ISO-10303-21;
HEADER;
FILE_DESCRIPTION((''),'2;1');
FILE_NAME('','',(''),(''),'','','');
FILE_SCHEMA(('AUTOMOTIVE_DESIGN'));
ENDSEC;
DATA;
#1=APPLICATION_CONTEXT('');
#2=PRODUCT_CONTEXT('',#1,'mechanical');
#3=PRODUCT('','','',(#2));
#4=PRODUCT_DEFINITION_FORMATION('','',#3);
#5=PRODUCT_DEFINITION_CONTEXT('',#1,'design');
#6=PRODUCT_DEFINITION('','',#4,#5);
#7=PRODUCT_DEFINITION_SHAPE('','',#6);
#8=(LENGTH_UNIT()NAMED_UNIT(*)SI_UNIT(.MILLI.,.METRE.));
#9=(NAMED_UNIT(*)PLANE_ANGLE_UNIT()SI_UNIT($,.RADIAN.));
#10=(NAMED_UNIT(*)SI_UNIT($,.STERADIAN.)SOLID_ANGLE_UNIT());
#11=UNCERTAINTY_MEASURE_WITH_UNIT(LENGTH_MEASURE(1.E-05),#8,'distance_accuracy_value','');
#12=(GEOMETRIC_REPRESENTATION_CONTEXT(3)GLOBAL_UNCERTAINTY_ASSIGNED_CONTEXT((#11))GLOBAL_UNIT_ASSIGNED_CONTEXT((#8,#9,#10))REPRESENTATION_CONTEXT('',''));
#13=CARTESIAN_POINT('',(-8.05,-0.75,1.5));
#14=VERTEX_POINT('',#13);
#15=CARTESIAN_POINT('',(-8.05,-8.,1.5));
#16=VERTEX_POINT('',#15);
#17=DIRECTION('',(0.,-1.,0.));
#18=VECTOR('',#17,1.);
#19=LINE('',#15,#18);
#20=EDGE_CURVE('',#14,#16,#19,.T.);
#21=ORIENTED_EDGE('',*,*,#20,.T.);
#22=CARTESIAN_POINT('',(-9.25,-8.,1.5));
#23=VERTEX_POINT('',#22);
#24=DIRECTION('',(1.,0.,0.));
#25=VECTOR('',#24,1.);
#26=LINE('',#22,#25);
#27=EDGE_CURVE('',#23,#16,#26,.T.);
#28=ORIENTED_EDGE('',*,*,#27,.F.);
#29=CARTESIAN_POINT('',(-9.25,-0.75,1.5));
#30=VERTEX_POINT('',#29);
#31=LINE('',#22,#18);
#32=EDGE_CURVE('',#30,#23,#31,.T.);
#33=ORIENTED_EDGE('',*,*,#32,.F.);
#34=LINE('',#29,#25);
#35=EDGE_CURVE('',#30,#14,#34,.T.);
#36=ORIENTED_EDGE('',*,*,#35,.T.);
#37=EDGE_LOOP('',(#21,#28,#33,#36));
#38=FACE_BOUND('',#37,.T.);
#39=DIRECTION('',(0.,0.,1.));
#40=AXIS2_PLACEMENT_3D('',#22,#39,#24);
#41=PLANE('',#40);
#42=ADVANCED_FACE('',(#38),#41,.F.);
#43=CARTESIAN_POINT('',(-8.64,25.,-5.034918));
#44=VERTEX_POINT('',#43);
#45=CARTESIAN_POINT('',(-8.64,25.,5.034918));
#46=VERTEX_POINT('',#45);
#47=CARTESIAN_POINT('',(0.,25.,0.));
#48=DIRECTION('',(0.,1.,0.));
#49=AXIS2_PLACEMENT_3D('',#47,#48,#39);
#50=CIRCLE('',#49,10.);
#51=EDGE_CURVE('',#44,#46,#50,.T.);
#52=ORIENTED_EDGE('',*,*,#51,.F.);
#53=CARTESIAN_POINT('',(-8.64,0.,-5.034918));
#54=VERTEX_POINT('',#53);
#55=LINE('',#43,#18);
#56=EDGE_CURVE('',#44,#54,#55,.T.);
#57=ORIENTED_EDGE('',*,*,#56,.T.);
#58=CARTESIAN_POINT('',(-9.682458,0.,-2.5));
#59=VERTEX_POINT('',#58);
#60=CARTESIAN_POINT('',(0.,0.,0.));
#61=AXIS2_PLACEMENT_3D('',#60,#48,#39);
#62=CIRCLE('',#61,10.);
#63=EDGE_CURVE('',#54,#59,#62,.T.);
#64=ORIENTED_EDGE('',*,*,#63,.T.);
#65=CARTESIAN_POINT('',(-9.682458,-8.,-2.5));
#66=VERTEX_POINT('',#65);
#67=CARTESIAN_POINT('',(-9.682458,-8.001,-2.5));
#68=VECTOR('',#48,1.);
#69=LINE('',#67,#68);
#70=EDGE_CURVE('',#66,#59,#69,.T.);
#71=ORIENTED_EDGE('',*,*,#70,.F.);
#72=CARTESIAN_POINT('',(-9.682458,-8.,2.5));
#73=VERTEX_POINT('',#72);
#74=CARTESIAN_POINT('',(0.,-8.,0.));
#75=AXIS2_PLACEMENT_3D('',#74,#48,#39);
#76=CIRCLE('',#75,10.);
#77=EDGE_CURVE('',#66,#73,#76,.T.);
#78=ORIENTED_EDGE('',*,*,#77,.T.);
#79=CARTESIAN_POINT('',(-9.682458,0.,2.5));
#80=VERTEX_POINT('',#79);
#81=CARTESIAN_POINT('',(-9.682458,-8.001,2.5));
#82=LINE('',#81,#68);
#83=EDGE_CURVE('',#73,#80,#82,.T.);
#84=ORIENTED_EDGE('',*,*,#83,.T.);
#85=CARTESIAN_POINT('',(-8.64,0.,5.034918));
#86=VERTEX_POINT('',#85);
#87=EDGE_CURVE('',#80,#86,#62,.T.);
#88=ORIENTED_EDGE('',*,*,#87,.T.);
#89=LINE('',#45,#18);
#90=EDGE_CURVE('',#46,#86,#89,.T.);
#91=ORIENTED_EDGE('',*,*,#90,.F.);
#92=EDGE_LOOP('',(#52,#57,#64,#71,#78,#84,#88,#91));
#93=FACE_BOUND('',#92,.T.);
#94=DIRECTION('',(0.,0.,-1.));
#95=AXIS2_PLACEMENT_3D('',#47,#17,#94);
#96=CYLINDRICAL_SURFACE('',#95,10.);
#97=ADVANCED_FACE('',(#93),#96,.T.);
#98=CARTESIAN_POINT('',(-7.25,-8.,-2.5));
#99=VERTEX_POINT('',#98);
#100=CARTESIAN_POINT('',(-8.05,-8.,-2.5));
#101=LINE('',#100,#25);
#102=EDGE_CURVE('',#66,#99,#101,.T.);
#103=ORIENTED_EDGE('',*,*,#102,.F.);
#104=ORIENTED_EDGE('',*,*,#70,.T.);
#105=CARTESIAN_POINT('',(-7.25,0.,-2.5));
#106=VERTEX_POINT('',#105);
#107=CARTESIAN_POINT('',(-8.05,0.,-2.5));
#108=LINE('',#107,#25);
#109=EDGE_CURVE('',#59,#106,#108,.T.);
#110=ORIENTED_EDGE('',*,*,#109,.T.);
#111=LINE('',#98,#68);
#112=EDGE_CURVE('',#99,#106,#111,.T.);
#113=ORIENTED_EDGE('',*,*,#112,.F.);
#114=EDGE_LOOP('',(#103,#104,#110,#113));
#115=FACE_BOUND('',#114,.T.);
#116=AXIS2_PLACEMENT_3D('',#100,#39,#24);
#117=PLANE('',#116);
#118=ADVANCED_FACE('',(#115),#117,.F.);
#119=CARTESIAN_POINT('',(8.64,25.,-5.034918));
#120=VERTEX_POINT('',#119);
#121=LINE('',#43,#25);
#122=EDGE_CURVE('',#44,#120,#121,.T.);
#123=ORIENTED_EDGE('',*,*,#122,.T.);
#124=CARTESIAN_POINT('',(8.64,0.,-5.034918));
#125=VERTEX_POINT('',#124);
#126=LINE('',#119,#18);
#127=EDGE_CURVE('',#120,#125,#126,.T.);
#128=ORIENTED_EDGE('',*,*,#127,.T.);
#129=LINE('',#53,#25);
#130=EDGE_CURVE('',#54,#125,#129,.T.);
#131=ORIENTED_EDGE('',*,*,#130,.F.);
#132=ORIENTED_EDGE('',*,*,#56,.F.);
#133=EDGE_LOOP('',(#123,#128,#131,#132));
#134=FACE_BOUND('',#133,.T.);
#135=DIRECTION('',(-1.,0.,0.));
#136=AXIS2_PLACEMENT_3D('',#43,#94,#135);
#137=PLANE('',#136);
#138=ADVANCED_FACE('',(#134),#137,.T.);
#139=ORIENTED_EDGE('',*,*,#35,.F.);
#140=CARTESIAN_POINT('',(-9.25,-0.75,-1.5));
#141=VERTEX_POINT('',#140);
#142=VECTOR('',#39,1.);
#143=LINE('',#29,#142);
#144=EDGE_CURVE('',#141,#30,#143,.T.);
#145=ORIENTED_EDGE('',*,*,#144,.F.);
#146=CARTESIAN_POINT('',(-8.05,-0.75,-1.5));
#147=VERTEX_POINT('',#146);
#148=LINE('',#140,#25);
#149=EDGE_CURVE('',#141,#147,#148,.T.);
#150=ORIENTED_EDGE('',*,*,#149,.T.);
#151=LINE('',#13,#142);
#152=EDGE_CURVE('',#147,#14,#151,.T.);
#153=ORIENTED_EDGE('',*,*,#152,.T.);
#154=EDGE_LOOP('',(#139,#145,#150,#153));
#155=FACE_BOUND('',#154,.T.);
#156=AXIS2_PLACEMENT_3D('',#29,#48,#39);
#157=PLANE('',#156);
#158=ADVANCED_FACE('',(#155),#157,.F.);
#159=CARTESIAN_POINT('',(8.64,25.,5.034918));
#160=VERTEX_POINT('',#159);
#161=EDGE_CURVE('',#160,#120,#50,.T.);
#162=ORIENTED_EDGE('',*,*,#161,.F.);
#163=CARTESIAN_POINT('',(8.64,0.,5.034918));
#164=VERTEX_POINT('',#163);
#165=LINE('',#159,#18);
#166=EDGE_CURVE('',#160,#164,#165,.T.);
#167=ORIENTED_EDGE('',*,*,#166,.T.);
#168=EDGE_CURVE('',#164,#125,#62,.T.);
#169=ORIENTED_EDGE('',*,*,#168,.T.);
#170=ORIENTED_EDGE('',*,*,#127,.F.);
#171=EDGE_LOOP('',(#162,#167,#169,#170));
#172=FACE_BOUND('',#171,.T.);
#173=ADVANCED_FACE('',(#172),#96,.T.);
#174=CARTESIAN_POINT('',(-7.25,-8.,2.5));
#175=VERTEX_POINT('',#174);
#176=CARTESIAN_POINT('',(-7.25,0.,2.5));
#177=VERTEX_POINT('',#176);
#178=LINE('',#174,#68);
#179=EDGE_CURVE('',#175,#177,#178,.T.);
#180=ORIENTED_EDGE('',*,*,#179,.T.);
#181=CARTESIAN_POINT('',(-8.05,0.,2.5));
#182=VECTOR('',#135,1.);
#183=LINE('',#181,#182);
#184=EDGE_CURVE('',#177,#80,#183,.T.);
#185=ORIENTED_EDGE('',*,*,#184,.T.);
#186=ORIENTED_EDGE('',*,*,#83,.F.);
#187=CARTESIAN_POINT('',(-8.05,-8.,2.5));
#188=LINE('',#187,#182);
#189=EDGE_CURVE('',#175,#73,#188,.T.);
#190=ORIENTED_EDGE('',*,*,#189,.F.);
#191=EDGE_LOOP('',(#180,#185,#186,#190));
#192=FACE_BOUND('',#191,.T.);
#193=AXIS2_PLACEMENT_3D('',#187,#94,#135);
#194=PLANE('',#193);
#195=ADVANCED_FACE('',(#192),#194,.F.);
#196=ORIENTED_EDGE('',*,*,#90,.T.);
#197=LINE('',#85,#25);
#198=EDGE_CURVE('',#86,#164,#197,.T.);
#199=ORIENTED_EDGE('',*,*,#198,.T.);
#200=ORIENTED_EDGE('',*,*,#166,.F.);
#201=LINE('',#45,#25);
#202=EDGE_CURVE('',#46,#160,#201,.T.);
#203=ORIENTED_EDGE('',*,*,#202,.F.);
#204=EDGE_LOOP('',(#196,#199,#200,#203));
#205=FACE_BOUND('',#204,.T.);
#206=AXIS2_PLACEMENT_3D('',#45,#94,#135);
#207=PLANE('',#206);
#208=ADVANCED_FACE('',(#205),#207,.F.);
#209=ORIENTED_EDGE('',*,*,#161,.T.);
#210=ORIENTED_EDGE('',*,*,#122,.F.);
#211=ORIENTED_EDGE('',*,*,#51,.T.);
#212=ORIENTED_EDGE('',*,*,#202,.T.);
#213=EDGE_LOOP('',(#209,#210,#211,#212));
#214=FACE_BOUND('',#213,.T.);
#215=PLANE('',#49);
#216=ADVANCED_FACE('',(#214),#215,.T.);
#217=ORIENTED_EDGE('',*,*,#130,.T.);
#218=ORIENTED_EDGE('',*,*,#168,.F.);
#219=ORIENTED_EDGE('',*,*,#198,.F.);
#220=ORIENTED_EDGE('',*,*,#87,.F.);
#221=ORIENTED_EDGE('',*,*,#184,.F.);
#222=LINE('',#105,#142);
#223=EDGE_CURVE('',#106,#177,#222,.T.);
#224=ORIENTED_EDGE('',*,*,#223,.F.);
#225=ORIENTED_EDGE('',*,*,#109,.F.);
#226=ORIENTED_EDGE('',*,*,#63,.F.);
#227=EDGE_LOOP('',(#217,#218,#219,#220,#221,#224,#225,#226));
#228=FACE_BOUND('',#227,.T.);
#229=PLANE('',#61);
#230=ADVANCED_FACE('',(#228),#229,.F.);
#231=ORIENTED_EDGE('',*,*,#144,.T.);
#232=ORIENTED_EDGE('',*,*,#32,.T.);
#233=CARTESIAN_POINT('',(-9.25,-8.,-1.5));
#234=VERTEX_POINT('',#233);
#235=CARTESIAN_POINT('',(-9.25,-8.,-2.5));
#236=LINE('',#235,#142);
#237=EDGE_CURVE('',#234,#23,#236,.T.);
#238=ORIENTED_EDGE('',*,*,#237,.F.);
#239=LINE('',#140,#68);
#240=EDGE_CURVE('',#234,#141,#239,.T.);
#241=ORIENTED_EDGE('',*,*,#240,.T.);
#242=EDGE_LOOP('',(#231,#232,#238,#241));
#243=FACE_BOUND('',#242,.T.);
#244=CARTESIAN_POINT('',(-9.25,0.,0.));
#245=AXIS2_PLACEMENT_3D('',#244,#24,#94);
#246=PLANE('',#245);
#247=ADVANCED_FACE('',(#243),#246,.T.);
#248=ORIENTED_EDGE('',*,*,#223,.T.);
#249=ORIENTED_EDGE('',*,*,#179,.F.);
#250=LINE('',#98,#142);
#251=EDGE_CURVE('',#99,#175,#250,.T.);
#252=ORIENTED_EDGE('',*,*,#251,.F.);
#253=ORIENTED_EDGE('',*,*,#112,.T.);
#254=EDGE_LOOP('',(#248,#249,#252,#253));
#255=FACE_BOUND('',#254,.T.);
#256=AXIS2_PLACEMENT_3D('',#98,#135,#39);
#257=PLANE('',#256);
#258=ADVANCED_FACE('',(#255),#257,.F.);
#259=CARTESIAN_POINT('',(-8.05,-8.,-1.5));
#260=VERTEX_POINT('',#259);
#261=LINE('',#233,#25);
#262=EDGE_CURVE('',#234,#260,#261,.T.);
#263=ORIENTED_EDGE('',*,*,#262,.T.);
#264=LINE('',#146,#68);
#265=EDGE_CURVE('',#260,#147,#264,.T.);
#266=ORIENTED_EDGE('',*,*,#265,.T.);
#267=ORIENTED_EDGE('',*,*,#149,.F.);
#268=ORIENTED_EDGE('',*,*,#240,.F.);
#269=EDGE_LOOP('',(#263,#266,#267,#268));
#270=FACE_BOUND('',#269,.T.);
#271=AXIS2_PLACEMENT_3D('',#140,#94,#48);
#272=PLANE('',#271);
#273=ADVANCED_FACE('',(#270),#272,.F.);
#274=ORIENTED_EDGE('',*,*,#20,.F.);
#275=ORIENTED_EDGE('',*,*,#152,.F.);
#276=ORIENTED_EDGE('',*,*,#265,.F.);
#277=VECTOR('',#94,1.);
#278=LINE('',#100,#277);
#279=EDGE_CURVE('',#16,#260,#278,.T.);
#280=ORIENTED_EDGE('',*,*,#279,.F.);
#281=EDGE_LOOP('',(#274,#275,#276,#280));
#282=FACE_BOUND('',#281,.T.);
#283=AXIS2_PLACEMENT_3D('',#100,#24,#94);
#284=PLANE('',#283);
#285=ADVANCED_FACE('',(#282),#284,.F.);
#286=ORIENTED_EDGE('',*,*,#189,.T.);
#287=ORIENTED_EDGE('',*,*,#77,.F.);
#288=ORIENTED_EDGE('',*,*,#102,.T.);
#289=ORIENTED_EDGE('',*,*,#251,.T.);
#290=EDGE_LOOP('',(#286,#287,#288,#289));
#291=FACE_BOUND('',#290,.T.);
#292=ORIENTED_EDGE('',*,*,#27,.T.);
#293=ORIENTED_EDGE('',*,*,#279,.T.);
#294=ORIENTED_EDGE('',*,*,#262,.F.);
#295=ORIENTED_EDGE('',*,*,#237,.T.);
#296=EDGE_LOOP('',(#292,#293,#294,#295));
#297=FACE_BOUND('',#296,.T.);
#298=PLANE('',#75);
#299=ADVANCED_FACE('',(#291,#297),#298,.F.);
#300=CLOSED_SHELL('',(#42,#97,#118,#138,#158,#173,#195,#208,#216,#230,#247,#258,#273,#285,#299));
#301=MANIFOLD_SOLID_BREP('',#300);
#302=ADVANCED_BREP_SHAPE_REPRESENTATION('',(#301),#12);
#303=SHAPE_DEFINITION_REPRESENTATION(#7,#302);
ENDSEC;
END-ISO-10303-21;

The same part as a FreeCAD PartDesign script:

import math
import FreeCAD as App
import Part
import Sketcher

doc = App.newDocument("Part")
params = doc.addObject("Spreadsheet::Sheet", "Params")
for row, (alias, value) in enumerate([
    ("sketch1_diameter", "20 mm"),
    ("pad1_length", "25 mm"),
    ("sketch2_radius", "10 mm"),
    ("sketch2_width", "17.28 mm"),
    ("pocket1_length", "25 mm"),
    ("sketch3_height", "5 mm"),
    ("sketch3_width", "0.8 mm"),
    ("pad2_length", "8 mm"),
    ("sketch4_width", "8 mm"),
    ("sketch4_height", "1 mm"),
    ("sketch4_height2", "3 mm"),
    ("sketch4_width2", "7.25 mm"),
    ("pad3_length", "1.2 mm"),
    ("sketch5_width", "8 mm"),
    ("sketch5_height", "5 mm"),
    ("pad4_length", "0.8 mm"),
    ("sketch6_radius", "10 mm"),
    ("sketch6_height", "5 mm"),
], start=1):
    params.set(f"A{row}", alias)
    params.set(f"B{row}", "=" + value)
    params.setAlias(f"B{row}", alias)

body = doc.addObject("PartDesign::Body", "Body")

sketch1 = doc.addObject("Sketcher::SketchObject", "Sketch")
body.addObject(sketch1)
sketch1.AttachmentSupport = (doc.XZ_Plane, [""])
sketch1.MapMode = "FlatFace"
sketch1.addGeometry(Part.Circle(App.Vector(0, 0, 0), App.Vector(0, 0, 1), 10), False)
sketch1.addConstraint([
    Sketcher.Constraint("Coincident", 0, 3, -1, 1),
    Sketcher.Constraint("Diameter", 0, 20.0),
])
sketch1.setExpression("Constraints[1]", "Params.sketch1_diameter")
pad1 = doc.addObject("PartDesign::Pad", "Pad")
body.addObject(pad1)
pad1.Profile = sketch1
pad1.setExpression("Length", "Params.pad1_length")
pad1.Reversed = True

sketch2 = doc.addObject("Sketcher::SketchObject", "Sketch001")
body.addObject(sketch2)
sketch2.AttachmentSupport = (doc.XZ_Plane, [""])
sketch2.MapMode = "FlatFace"
sketch2.addGeometry([
    Part.LineSegment(App.Vector(9, -5, 0), App.Vector(-9, -5, 0)),
    Part.ArcOfCircle(Part.Circle(App.Vector(0, 0, 0), App.Vector(0, 0, 1), 10), math.radians(-150), math.radians(-30)),
    Part.LineSegment(App.Vector(-9, 5, 0), App.Vector(9, 5, 0)),
    Part.ArcOfCircle(Part.Circle(App.Vector(0, 0, 0), App.Vector(0, 0, 1), 10), math.radians(30), math.radians(150)),
], False)
sketch2.addConstraint([
    Sketcher.Constraint("Coincident", 0, 1, 1, 2),
    Sketcher.Constraint("Coincident", 1, 1, 0, 2),
    Sketcher.Constraint("Coincident", 2, 1, 3, 2),
    Sketcher.Constraint("Coincident", 3, 1, 2, 2),
    Sketcher.Constraint("Horizontal", 0),
    Sketcher.Constraint("Horizontal", 2),
    Sketcher.Constraint("Coincident", 1, 3, -1, 1),
    Sketcher.Constraint("Coincident", 3, 3, -1, 1),
    Sketcher.Constraint("Equal", 1, 3),
    Sketcher.Constraint("Vertical", 1, 1, 2, 1),
    Sketcher.Constraint("Radius", 1, 10.0),
    Sketcher.Constraint("DistanceX", 0, 2, 0, 1, 17.28),
])
sketch2.setExpression("Constraints[10]", "Params.sketch2_radius")
sketch2.setExpression("Constraints[11]", "Params.sketch2_width")
pocket1 = doc.addObject("PartDesign::Pocket", "Pocket")
body.addObject(pocket1)
pocket1.Profile = sketch2
pocket1.setExpression("Length", "Params.pocket1_length")
body2 = doc.addObject("PartDesign::Body", "Body001")

sketch3 = doc.addObject("Sketcher::SketchObject", "Sketch002")
body2.addObject(sketch3)
sketch3.AttachmentSupport = (doc.getObject("XZ_Plane001"), [""])
sketch3.MapMode = "FlatFace"
sketch3.addGeometry([
    Part.LineSegment(App.Vector(-7.2, -2.5, 0), App.Vector(-7.2, 2.5, 0)),
    Part.LineSegment(App.Vector(-7.2, 2.5, 0), App.Vector(-8.1, 2.5, 0)),
    Part.LineSegment(App.Vector(-8.1, 2.5, 0), App.Vector(-8.1, -2.5, 0)),
    Part.LineSegment(App.Vector(-8.1, -2.5, 0), App.Vector(-7.2, -2.5, 0)),
], False)
sketch3.addConstraint([
    Sketcher.Constraint("Coincident", 0, 2, 1, 1),
    Sketcher.Constraint("Coincident", 1, 2, 2, 1),
    Sketcher.Constraint("Coincident", 2, 2, 3, 1),
    Sketcher.Constraint("Coincident", 3, 2, 0, 1),
    Sketcher.Constraint("Vertical", 0),
    Sketcher.Constraint("Horizontal", 1),
    Sketcher.Constraint("Vertical", 2),
    Sketcher.Constraint("Horizontal", 3),
    Sketcher.Constraint("DistanceY", 0, 1, 0, 2, 5.0),
    Sketcher.Constraint("DistanceX", 1, 2, 1, 1, 0.8),
    Sketcher.Constraint("DistanceY", -1, 1, 0, 2, 2.5),
    Sketcher.Constraint("DistanceX", 0, 2, -1, 1, 7.25),
])
sketch3.setExpression("Constraints[8]", "Params.sketch3_height")
sketch3.setExpression("Constraints[9]", "Params.sketch3_width")
pad2 = doc.addObject("PartDesign::Pad", "Pad001")
body2.addObject(pad2)
pad2.Profile = sketch3
pad2.setExpression("Length", "Params.pad2_length")

sketch4 = doc.addObject("Sketcher::SketchObject", "Sketch003")
body2.addObject(sketch4)
sketch4.AttachmentSupport = (doc.getObject("YZ_Plane001"), [""])
sketch4.MapMode = "FlatFace"
sketch4.AttachmentOffset = App.Placement(App.Vector(0, 0, -8.05), App.Rotation())
sketch4.addGeometry([
    Part.LineSegment(App.Vector(0, -2.5, 0), App.Vector(-8, -2.5, 0)),
    Part.LineSegment(App.Vector(-8, -2.5, 0), App.Vector(-8, -1.5, 0)),
    Part.LineSegment(App.Vector(-8, -1.5, 0), App.Vector(-0.8, -1.5, 0)),
    Part.LineSegment(App.Vector(-0.8, -1.5, 0), App.Vector(-0.8, 1.5, 0)),
    Part.LineSegment(App.Vector(-0.8, 1.5, 0), App.Vector(-8, 1.5, 0)),
    Part.LineSegment(App.Vector(-8, 1.5, 0), App.Vector(-8, 2.5, 0)),
    Part.LineSegment(App.Vector(-8, 2.5, 0), App.Vector(0, 2.5, 0)),
    Part.LineSegment(App.Vector(0, 2.5, 0), App.Vector(0, -2.5, 0)),
], False)
sketch4.addConstraint([
    Sketcher.Constraint("Coincident", 0, 2, 1, 1),
    Sketcher.Constraint("Coincident", 1, 2, 2, 1),
    Sketcher.Constraint("Coincident", 2, 2, 3, 1),
    Sketcher.Constraint("Coincident", 3, 2, 4, 1),
    Sketcher.Constraint("Coincident", 4, 2, 5, 1),
    Sketcher.Constraint("Coincident", 5, 2, 6, 1),
    Sketcher.Constraint("Coincident", 6, 2, 7, 1),
    Sketcher.Constraint("Coincident", 7, 2, 0, 1),
    Sketcher.Constraint("Horizontal", 0),
    Sketcher.Constraint("Vertical", 1),
    Sketcher.Constraint("Horizontal", 2),
    Sketcher.Constraint("Vertical", 3),
    Sketcher.Constraint("Horizontal", 4),
    Sketcher.Constraint("Vertical", 5),
    Sketcher.Constraint("Horizontal", 6),
    Sketcher.Constraint("Vertical", 7),
    Sketcher.Constraint("Symmetric", 6, 2, 7, 2, -1, 1),
    Sketcher.Constraint("Symmetric", 1, 2, 4, 2, -1),
    Sketcher.Constraint("DistanceX", 0, 2, 0, 1, 8.0),
    Sketcher.Constraint("DistanceY", 1, 1, 1, 2, 1.0),
    Sketcher.Constraint("DistanceY", 3, 1, 3, 2, 3.0),
    Sketcher.Constraint("DistanceX", 2, 1, 2, 2, 7.25),
])
sketch4.setExpression("Constraints[18]", "Params.sketch4_width")
sketch4.setExpression("Constraints[19]", "Params.sketch4_height")
sketch4.setExpression("Constraints[20]", "Params.sketch4_height2")
sketch4.setExpression("Constraints[21]", "Params.sketch4_width2")
pad3 = doc.addObject("PartDesign::Pad", "Pad002")
body2.addObject(pad3)
pad3.Profile = sketch4
pad3.setExpression("Length", "Params.pad3_length")
pad3.Reversed = True
doc.recompute()

boolean = doc.addObject("PartDesign::Boolean", "Boolean")
body.addObject(boolean)
boolean.Type = "Fuse"
boolean.addObjects([body2])

sketch5 = doc.addObject("Sketcher::SketchObject", "Sketch004")
body.addObject(sketch5)
sketch5.AttachmentSupport = (doc.YZ_Plane, [""])
sketch5.MapMode = "FlatFace"
sketch5.AttachmentOffset = App.Placement(App.Vector(0, 0, -9.25), App.Rotation())
sketch5.addGeometry([
    Part.LineSegment(App.Vector(0, -2, 0), App.Vector(-8, -2, 0)),
    Part.LineSegment(App.Vector(-8, -2, 0), App.Vector(-8, 2, 0)),
    Part.LineSegment(App.Vector(-8, 2, 0), App.Vector(0, 2, 0)),
    Part.LineSegment(App.Vector(0, 2, 0), App.Vector(0, -2, 0)),
], False)
sketch5.addConstraint([
    Sketcher.Constraint("Coincident", 0, 2, 1, 1),
    Sketcher.Constraint("Coincident", 1, 2, 2, 1),
    Sketcher.Constraint("Coincident", 2, 2, 3, 1),
    Sketcher.Constraint("Coincident", 3, 2, 0, 1),
    Sketcher.Constraint("Horizontal", 0),
    Sketcher.Constraint("Vertical", 1),
    Sketcher.Constraint("Horizontal", 2),
    Sketcher.Constraint("Vertical", 3),
    Sketcher.Constraint("Symmetric", 2, 2, 3, 2, -1, 1),
    Sketcher.Constraint("DistanceX", 0, 2, 0, 1, 8.0),
    Sketcher.Constraint("DistanceY", 1, 1, 1, 2, 5.0),
])
sketch5.setExpression("Constraints[9]", "Params.sketch5_width")
sketch5.setExpression("Constraints[10]", "Params.sketch5_height")
pad4 = doc.addObject("PartDesign::Pad", "Pad003")
body.addObject(pad4)
pad4.Profile = sketch5
pad4.setExpression("Length", "Params.pad4_length")
pad4.Reversed = True

sketch6 = doc.addObject("Sketcher::SketchObject", "Sketch005")
body.addObject(sketch6)
sketch6.AttachmentSupport = (doc.XZ_Plane, [""])
sketch6.MapMode = "FlatFace"
sketch6.addGeometry([
    Part.LineSegment(App.Vector(-9.68, -2.5, 0), App.Vector(-10.05, -2.5, 0)),
    Part.LineSegment(App.Vector(-10.05, -2.5, 0), App.Vector(-10.05, 2.5, 0)),
    Part.LineSegment(App.Vector(-10.05, 2.5, 0), App.Vector(-9.68, 2.5, 0)),
    Part.ArcOfCircle(Part.Circle(App.Vector(0, 0, 0), App.Vector(0, 0, 1), 10), math.radians(166), math.radians(194)),
], False)
sketch6.addConstraint([
    Sketcher.Constraint("Coincident", 0, 2, 1, 1),
    Sketcher.Constraint("Coincident", 1, 2, 2, 1),
    Sketcher.Constraint("Coincident", 2, 2, 3, 1),
    Sketcher.Constraint("Coincident", 3, 2, 0, 1),
    Sketcher.Constraint("Horizontal", 0),
    Sketcher.Constraint("Vertical", 1),
    Sketcher.Constraint("Horizontal", 2),
    Sketcher.Constraint("Coincident", 3, 3, -1, 1),
    Sketcher.Constraint("Vertical", 2, 2, 3, 2),
    Sketcher.Constraint("Radius", 3, 10.0),
    Sketcher.Constraint("DistanceY", 1, 1, 1, 2, 5.0),
    Sketcher.Constraint("DistanceX", 0, 2, -1, 1, 10.05),
])
sketch6.setExpression("Constraints[9]", "Params.sketch6_radius")
sketch6.setExpression("Constraints[10]", "Params.sketch6_height")
pocket2 = doc.addObject("PartDesign::Pocket", "Pocket001")
body.addObject(pocket2)
pocket2.Profile = sketch6
pocket2.Type = "UpToFirst"
pocket2.Reversed = True

doc.recompute()
